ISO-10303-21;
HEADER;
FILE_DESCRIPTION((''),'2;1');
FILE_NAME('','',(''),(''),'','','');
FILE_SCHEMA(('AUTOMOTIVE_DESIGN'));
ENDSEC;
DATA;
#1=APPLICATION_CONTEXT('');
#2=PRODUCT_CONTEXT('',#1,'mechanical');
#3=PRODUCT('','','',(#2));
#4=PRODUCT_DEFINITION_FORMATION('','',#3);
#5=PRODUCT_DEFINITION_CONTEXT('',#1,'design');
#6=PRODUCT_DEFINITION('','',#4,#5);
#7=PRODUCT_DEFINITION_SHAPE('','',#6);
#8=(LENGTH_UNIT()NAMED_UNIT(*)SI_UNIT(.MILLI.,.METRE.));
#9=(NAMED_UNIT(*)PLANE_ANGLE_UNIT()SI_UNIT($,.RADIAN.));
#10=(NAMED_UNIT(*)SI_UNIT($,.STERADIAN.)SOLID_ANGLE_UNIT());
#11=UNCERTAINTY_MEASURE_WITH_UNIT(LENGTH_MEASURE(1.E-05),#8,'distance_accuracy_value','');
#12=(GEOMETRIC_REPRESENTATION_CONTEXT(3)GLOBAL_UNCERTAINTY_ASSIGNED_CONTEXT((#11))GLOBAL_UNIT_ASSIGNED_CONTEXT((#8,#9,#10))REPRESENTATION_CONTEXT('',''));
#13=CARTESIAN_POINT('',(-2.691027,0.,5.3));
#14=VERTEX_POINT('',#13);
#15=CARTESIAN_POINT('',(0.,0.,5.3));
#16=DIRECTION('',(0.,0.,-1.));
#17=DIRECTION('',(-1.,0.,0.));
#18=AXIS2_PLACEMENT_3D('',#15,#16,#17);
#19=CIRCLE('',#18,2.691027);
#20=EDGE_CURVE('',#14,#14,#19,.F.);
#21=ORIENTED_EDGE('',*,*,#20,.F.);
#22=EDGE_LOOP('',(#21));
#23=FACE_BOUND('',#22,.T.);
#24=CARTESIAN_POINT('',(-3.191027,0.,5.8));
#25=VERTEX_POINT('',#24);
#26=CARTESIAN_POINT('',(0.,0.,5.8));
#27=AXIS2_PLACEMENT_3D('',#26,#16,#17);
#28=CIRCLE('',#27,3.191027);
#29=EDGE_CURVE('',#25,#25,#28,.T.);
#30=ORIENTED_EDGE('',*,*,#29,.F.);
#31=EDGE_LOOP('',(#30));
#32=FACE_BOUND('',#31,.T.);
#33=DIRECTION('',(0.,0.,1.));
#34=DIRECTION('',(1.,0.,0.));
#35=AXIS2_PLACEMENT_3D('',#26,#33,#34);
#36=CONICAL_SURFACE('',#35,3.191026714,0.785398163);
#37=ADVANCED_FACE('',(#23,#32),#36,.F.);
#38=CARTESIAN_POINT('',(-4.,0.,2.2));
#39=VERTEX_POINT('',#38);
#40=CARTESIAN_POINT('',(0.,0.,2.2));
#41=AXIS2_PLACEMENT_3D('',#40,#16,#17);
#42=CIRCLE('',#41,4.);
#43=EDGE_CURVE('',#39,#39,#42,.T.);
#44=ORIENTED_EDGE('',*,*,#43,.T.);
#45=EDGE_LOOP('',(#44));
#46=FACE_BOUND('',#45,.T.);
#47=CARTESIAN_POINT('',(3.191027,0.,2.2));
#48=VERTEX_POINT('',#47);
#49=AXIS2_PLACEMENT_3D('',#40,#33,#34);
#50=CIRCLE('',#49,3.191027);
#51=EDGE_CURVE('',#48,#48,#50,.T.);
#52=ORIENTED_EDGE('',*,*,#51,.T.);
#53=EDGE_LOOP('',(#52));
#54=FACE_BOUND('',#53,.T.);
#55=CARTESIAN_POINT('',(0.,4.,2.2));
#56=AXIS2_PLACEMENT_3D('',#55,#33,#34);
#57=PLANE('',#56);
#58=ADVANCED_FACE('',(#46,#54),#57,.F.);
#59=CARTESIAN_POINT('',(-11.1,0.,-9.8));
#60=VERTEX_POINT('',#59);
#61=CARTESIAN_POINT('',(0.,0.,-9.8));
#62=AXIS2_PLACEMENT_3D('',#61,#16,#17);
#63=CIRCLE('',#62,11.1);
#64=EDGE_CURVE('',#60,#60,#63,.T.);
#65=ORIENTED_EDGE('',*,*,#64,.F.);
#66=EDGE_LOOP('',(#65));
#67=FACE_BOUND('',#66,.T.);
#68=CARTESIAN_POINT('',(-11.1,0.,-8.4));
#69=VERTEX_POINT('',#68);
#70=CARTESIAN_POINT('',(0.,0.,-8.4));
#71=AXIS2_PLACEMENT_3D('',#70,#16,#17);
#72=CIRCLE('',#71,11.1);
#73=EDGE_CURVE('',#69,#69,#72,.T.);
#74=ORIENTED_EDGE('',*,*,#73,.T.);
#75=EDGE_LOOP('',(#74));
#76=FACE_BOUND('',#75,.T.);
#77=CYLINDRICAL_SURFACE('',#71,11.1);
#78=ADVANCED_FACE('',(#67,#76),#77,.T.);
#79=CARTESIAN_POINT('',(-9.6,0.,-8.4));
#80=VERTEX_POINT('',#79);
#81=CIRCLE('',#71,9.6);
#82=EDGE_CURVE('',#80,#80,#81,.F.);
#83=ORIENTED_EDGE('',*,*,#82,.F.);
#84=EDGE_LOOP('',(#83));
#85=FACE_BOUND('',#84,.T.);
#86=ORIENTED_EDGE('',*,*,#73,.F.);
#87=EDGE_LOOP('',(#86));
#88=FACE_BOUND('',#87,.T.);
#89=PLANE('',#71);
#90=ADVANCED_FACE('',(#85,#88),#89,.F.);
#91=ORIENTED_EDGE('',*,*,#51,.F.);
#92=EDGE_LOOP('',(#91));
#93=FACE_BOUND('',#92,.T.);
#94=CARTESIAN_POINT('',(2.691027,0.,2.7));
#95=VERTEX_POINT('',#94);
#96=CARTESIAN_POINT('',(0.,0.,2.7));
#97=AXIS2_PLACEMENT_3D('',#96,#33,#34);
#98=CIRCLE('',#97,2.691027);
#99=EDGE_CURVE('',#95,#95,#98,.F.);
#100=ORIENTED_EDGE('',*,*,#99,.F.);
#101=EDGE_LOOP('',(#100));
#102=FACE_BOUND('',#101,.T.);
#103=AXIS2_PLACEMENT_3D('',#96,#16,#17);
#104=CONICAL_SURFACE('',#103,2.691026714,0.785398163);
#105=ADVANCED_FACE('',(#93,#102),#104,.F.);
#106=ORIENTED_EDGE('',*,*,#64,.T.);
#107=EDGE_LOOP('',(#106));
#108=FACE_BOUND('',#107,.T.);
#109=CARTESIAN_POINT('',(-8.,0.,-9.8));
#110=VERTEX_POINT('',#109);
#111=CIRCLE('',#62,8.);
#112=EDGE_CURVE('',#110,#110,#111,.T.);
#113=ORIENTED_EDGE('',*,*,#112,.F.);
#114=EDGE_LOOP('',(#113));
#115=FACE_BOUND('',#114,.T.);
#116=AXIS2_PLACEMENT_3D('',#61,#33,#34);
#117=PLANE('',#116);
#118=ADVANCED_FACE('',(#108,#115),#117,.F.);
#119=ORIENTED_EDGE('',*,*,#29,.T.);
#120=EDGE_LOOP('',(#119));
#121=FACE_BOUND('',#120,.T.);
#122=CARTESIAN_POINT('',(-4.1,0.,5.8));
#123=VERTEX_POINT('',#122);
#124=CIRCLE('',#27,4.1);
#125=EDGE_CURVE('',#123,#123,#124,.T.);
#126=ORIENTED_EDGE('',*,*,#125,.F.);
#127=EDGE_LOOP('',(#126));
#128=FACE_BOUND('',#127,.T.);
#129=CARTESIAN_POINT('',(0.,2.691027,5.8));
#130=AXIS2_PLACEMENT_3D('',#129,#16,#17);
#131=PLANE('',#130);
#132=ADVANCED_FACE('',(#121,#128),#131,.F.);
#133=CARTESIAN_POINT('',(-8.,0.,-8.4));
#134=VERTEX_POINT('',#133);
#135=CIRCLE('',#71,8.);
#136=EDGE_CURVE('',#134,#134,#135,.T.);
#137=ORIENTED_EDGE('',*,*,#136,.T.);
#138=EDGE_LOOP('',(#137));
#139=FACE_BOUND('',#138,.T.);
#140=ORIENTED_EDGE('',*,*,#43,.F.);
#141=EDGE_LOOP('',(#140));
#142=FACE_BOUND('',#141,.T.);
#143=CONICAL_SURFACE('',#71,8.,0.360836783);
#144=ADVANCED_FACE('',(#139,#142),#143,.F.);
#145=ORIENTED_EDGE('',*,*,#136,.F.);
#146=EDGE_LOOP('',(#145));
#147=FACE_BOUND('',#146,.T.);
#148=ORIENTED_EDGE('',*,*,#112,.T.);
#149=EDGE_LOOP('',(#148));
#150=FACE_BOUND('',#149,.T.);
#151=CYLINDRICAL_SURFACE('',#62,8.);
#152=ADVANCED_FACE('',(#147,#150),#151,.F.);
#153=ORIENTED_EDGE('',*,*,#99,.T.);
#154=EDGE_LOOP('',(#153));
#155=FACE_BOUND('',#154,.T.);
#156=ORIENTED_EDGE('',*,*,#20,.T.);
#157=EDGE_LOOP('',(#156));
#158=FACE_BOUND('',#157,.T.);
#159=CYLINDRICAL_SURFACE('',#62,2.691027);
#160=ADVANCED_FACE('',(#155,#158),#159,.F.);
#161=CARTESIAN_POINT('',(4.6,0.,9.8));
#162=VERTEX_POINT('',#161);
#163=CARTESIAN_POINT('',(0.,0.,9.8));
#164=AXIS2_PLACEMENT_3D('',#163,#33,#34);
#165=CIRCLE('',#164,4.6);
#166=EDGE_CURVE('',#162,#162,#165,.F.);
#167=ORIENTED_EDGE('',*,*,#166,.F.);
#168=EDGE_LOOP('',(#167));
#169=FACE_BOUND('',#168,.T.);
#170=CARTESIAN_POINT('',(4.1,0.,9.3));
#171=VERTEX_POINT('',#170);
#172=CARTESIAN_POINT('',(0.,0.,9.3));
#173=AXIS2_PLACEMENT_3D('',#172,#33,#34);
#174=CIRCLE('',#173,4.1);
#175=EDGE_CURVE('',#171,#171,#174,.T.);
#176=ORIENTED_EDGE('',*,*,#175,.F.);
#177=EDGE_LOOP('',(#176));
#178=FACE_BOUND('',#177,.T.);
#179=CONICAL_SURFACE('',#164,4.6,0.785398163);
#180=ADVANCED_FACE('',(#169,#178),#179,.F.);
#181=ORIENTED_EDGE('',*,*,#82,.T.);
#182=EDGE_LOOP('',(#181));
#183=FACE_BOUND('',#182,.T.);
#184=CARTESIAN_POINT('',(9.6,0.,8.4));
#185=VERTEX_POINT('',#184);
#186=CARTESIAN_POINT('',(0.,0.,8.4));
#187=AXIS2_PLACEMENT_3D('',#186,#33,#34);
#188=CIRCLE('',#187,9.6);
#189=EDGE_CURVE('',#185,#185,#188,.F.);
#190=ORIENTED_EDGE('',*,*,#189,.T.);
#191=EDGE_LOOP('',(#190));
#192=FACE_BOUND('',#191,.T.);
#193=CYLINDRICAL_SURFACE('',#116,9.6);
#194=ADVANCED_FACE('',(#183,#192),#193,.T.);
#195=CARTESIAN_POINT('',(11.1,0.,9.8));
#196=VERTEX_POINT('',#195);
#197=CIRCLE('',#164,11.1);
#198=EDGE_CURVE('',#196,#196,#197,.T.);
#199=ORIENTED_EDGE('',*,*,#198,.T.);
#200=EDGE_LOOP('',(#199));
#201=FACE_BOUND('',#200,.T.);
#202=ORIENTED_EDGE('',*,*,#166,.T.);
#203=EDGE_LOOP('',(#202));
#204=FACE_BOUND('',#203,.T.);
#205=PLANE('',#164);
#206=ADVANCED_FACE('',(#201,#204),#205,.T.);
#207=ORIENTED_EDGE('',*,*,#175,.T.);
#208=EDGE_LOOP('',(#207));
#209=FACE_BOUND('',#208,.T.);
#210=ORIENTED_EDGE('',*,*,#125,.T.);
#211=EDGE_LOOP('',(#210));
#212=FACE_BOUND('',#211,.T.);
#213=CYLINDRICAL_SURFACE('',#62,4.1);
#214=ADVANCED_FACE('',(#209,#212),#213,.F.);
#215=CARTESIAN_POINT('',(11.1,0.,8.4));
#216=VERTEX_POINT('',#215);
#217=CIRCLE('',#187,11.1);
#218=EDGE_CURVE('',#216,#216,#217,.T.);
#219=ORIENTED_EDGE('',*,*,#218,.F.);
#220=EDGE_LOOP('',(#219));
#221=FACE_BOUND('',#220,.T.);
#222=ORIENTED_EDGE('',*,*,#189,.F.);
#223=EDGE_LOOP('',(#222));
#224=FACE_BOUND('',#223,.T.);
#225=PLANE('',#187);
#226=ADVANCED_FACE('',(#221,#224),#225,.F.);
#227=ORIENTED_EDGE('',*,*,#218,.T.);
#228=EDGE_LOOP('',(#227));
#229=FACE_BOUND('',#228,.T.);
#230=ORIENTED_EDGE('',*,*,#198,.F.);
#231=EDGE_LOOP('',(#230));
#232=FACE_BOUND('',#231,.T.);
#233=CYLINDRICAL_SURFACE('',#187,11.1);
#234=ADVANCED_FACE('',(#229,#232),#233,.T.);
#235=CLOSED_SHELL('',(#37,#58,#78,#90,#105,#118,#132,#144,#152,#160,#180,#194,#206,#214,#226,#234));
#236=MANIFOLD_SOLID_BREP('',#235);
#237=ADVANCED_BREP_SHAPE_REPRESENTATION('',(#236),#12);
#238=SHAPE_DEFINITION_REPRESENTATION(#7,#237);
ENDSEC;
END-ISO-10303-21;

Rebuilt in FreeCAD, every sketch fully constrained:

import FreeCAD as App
import Part
import Sketcher

V = App.Vector
Q = App.Units.Quantity


def edges_at(feature, points):
    """Names of the edges that pass closest to the given points."""
    edges = feature.Shape.Edges
    near = lambda p: min(range(len(edges)), key=lambda i: edges[i].distToShape(Part.Vertex(*p))[0])
    return sorted({f"Edge{near(p) + 1}" for p in points})


def add_polygon(sketch, points):
    """Adds a closed chain of lines whose ends are joined by coincident constraints."""
    first, n = sketch.GeometryCount, len(points)
    for a, b in zip(points, points[1:] + points[:1]):
        sketch.addGeometry(Part.LineSegment(App.Vector(*a, 0), App.Vector(*b, 0)), False)
    for i in range(n):
        sketch.addConstraint(Sketcher.Constraint("Coincident", first + i, 2, first + (i + 1) % n, 1))

doc = App.newDocument("Part")
body = doc.addObject("PartDesign::Body", "Body")

# Sketch on XY plane
sketch1 = doc.addObject("Sketcher::SketchObject", "Sketch")
body.addObject(sketch1)
sketch1.AttachmentSupport = (doc.XY_Plane, [""])
sketch1.MapMode = "FlatFace"
sketch1.addGeometry(Part.Circle(V(0, 0, 0), V(0, 0, 1), 9.6), False)
sketch1.addConstraint([
    Sketcher.Constraint("Coincident", 0, 3, -1, 1),
    Sketcher.Constraint("Diameter", 0, Q("19.2 mm")),
])
pad1 = doc.addObject("PartDesign::Pad", "Pad")
body.addObject(pad1)
pad1.Profile = sketch1
pad1.Type = "TwoLengths"
pad1.Length = 9.8
pad1.Length2 = 9.8

# Sketch on XY plane
sketch2 = doc.addObject("Sketcher::SketchObject", "Sketch001")
body.addObject(sketch2)
sketch2.AttachmentSupport = (doc.XY_Plane, [""])
sketch2.MapMode = "FlatFace"
sketch2.AttachmentOffset = App.Placement(V(0, 0, 9.8), App.Rotation())
sketch2.addGeometry(Part.Circle(V(0, 0, 0), V(0, 0, 1), 11.1), False)
sketch2.addConstraint([
    Sketcher.Constraint("Coincident", 0, 3, -1, 1),
    Sketcher.Constraint("Diameter", 0, Q("22.2 mm")),
])
pad2 = doc.addObject("PartDesign::Pad", "Pad001")
body.addObject(pad2)
pad2.Profile = sketch2
pad2.Length = 1.4
pad2.Reversed = True

# Sketch on XY plane
sketch3 = doc.addObject("Sketcher::SketchObject", "Sketch002")
body.addObject(sketch3)
sketch3.AttachmentSupport = (doc.XY_Plane, [""])
sketch3.MapMode = "FlatFace"
sketch3.AttachmentOffset = App.Placement(V(0, 0, -8.4), App.Rotation())
sketch3.addGeometry(Part.Circle(V(0, 0, 0), V(0, 0, 1), 11.1), False)
sketch3.addConstraint([
    Sketcher.Constraint("Coincident", 0, 3, -1, 1),
    Sketcher.Constraint("Diameter", 0, Q("22.2 mm")),
])
pad3 = doc.addObject("PartDesign::Pad", "Pad002")
body.addObject(pad3)
pad3.Profile = sketch3
pad3.Length = 1.4
pad3.Reversed = True

# Sketch on YZ plane
sketch4 = doc.addObject("Sketcher::SketchObject", "Sketch003")
body.addObject(sketch4)
sketch4.AttachmentSupport = (doc.YZ_Plane, [""])
sketch4.MapMode = "FlatFace"
add_polygon(sketch4, [(0, -9.8), (8, -9.8), (8, -8.4), (4, 2.2), (2.691027, 2.2), (2.691027, 5.8), (4.1, 5.8), (4.1, 9.8), (0, 9.8)])  # lines 0-8
sketch4.addConstraint([
    Sketcher.Constraint("Horizontal", 0),
    Sketcher.Constraint("Vertical", 1),
    Sketcher.Constraint("Horizontal", 3),
    Sketcher.Constraint("Vertical", 4),
    Sketcher.Constraint("Horizontal", 5),
    Sketcher.Constraint("Vertical", 6),
    Sketcher.Constraint("Horizontal", 7),
    Sketcher.Constraint("Vertical", 8),
    Sketcher.Constraint("Symmetric", 7, 2, 8, 2, -1, 1),
    Sketcher.Constraint("DistanceX", 0, 1, 0, 2, Q("8 mm")),
    Sketcher.Constraint("DistanceY", 6, 1, 6, 2, Q("4 mm")),
    Sketcher.Constraint("DistanceX", 7, 2, 7, 1, Q("4.1 mm")),
    Sketcher.Constraint("DistanceY", 1, 1, 1, 2, Q("1.4 mm")),
    Sketcher.Constraint("DistanceY", 4, 1, 4, 2, Q("3.6 mm")),
    Sketcher.Constraint("DistanceY", 8, 2, 8, 1, Q("19.6 mm")),
    Sketcher.Constraint("DistanceX", -1, 1, 2, 2, Q("4 mm")),
    Sketcher.Constraint("DistanceX", 3, 2, 3, 1, Q("1.308973 mm")),
])
groove = doc.addObject("PartDesign::Groove", "Groove")
body.addObject(groove)
groove.Profile = sketch4
groove.ReferenceAxis = (sketch4, ["V_Axis"])
groove.Angle = 360
doc.recompute()

chamfer = doc.addObject("PartDesign::Chamfer", "Chamfer")
body.addObject(chamfer)
chamfer.Base = (groove, edges_at(groove, [(2.691, 0, 2.2), (2.691, 0, 5.8), (4.1, 0, 9.8)]))
chamfer.Size = 0.5

doc.recompute()
